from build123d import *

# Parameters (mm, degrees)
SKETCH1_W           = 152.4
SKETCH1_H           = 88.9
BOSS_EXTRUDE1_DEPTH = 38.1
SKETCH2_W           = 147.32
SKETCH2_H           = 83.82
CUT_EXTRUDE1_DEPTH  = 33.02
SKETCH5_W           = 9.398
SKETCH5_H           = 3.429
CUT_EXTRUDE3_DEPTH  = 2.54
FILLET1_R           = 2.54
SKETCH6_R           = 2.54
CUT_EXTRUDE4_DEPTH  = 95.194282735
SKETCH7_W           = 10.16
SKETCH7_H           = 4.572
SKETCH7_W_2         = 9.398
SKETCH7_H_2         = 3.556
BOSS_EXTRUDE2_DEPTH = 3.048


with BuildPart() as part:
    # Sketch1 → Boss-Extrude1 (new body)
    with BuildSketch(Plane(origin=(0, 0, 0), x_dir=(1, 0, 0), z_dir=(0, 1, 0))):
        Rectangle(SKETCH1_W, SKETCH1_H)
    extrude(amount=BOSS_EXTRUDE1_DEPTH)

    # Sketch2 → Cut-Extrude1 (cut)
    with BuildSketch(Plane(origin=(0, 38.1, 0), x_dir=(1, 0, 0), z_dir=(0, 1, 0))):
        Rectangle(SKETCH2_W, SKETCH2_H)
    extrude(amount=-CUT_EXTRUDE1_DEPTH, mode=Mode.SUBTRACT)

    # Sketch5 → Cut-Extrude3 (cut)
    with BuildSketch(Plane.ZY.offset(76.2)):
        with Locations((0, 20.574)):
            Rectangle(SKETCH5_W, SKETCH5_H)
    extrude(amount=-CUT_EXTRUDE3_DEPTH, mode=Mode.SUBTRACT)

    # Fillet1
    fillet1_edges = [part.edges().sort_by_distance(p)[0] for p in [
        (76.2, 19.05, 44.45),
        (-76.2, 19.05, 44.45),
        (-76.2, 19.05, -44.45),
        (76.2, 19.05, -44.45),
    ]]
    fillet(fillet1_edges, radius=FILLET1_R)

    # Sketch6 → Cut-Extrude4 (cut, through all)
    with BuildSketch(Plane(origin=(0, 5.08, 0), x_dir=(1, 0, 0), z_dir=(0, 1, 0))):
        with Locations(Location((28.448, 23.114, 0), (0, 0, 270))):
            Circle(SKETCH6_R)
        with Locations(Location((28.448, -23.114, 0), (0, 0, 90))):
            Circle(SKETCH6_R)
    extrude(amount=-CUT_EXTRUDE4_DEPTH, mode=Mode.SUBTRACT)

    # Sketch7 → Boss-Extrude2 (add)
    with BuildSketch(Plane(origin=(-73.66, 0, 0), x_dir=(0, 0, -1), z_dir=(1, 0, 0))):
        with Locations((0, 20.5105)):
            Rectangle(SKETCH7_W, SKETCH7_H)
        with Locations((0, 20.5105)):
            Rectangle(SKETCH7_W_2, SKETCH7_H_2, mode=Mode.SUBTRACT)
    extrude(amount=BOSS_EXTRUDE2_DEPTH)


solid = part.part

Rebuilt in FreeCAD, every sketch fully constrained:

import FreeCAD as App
import Part
import Sketcher
Q = App.Units.Quantity


def edges_at(feature, points):
    """Names of the edges that pass closest to the given points."""
    edges = feature.Shape.Edges
    near = lambda p: min(range(len(edges)), key=lambda i: edges[i].distToShape(Part.Vertex(*p))[0])
    return sorted({f"Edge{near(p) + 1}" for p in points})


def add_polygon(sketch, points):
    """Adds a closed chain of lines whose ends are joined by coincident constraints."""
    first, n = sketch.GeometryCount, len(points)
    for a, b in zip(points, points[1:] + points[:1]):
        sketch.addGeometry(Part.LineSegment(App.Vector(*a, 0), App.Vector(*b, 0)), False)
    for i in range(n):
        sketch.addConstraint(Sketcher.Constraint("Coincident", first + i, 2, first + (i + 1) % n, 1))

doc = App.newDocument("Part")
body = doc.addObject("PartDesign::Body", "Body")

sketch1 = body.newObject("Sketcher::SketchObject", "Sketch")
sketch1.AttachmentSupport = (doc.getObject("XZ_Plane"), [""])
sketch1.MapMode = "FlatFace"
add_polygon(sketch1, [(-76.2, -44.45), (-76.2, 44.45), (76.2, 44.45), (76.2, -44.45)])
sketch1.addConstraint([
    Sketcher.Constraint("Vertical", 0),
    Sketcher.Constraint("Horizontal", 1),
    Sketcher.Constraint("Vertical", 2),
    Sketcher.Constraint("Horizontal", 3),
    Sketcher.Constraint("Symmetric", 0, 2, 2, 2, -1, 1),
    Sketcher.Constraint("DistanceX", 1, 1, 1, 2, Q("6 in")),
    Sketcher.Constraint("DistanceY", 0, 1, 0, 2, Q("3.5 in")),
])
pad1 = body.newObject("PartDesign::Pad", "Pad")
pad1.Profile = sketch1
pad1.Length = Q("1.5 in")
pad1.Reversed = True

sketch2 = body.newObject("Sketcher::SketchObject", "Sketch001")
sketch2.AttachmentSupport = (doc.getObject("XZ_Plane"), [""])
sketch2.MapMode = "FlatFace"
sketch2.AttachmentOffset = App.Placement(App.Vector(0, 0, -1.5 * 25.4), App.Rotation())
add_polygon(sketch2, [(-73.66, -41.91), (-73.66, 41.91), (73.66, 41.91), (73.66, -41.91)])
sketch2.addConstraint([
    Sketcher.Constraint("Vertical", 0),
    Sketcher.Constraint("Horizontal", 1),
    Sketcher.Constraint("Vertical", 2),
    Sketcher.Constraint("Horizontal", 3),
    Sketcher.Constraint("Symmetric", 0, 2, 2, 2, -1, 1),
    Sketcher.Constraint("DistanceX", 1, 1, 1, 2, Q("5.8 in")),
    Sketcher.Constraint("DistanceY", 0, 1, 0, 2, Q("3.3 in")),
])
pocket1 = body.newObject("PartDesign::Pocket", "Pocket")
pocket1.Profile = sketch2
pocket1.Length = Q("1.3 in")
pocket1.Reversed = True

sketch3 = body.newObject("Sketcher::SketchObject", "Sketch002")
sketch3.AttachmentSupport = (doc.getObject("YZ_Plane"), [""])
sketch3.MapMode = "FlatFace"
sketch3.AttachmentOffset = App.Placement(App.Vector(0, 0, -3 * 25.4), App.Rotation())
add_polygon(sketch3, [(22.2885, -4.699), (18.8595, -4.699), (18.8595, 4.699), (22.2885, 4.699)])
sketch3.addConstraint([
    Sketcher.Constraint("Horizontal", 0),
    Sketcher.Constraint("Vertical", 1),
    Sketcher.Constraint("Horizontal", 2),
    Sketcher.Constraint("Vertical", 3),
    Sketcher.Constraint("DistanceY", 1, 1, 1, 2, Q("0.37 in")),
    Sketcher.Constraint("DistanceX", 0, 2, 0, 1, Q("0.135 in")),
    Sketcher.Constraint("DistanceY", 0, 2, -1, 1, Q("0.185 in")),
    Sketcher.Constraint("DistanceX", -1, 1, 0, 2, Q("0.7425 in")),
])
pocket2 = body.newObject("PartDesign::Pocket", "Pocket001")
pocket2.Profile = sketch3
pocket2.Length = Q("0.1 in")
pocket2.Reversed = True
doc.recompute()

fillet = body.newObject("PartDesign::Fillet", "Fillet")
fillet.Base = (pocket2, edges_at(pocket2, [
    (76.2, 19.05, 44.45),
    (-76.2, 19.05, 44.45),
    (-76.2, 19.05, -44.45),
    (76.2, 19.05, -44.45),
]))
fillet.Radius = Q("0.1 in")

sketch4 = body.newObject("Sketcher::SketchObject", "Sketch003")
sketch4.AttachmentSupport = (doc.getObject("XZ_Plane"), [""])
sketch4.MapMode = "FlatFace"
sketch4.AttachmentOffset = App.Placement(App.Vector(0, 0, -0.2 * 25.4), App.Rotation())
sketch4.addGeometry([
    Part.Circle(App.Vector(28.448, -23.114, 0), App.Vector(0, 0, 1), 2.54),
    Part.Circle(App.Vector(28.448, 23.114, 0), App.Vector(0, 0, 1), 2.54),
], False)
sketch4.addConstraint([
    Sketcher.Constraint("Equal", 0, 1),
    Sketcher.Constraint("Symmetric", 0, 3, 1, 3, -1),
    Sketcher.Constraint("Diameter", 0, Q("0.2 in")),
    Sketcher.Constraint("DistanceX", -1, 1, 0, 3, Q("1.12 in")),
    Sketcher.Constraint("DistanceY", 0, 3, -1, 1, Q("0.91 in")),
])
pocket3 = body.newObject("PartDesign::Pocket", "Pocket002")
pocket3.Profile = sketch4
pocket3.Type = "ThroughAll"
pocket3.Reversed = True

sketch5 = body.newObject("Sketcher::SketchObject", "Sketch004")
sketch5.AttachmentSupport = (doc.getObject("YZ_Plane"), [""])
sketch5.MapMode = "FlatFace"
sketch5.AttachmentOffset = App.Placement(App.Vector(0, 0, -2.9 * 25.4), App.Rotation())
add_polygon(sketch5, [(22.7965, 5.08), (18.2245, 5.08), (18.2245, -5.08), (22.7965, -5.08)])
add_polygon(sketch5, [(18.7325, -4.699), (18.7325, 4.699), (22.2885, 4.699), (22.2885, -4.699)])
sketch5.addConstraint([
    Sketcher.Constraint("Horizontal", 0),
    Sketcher.Constraint("Vertical", 1),
    Sketcher.Constraint("Horizontal", 2),
    Sketcher.Constraint("Vertical", 3),
    Sketcher.Constraint("Vertical", 4),
    Sketcher.Constraint("Horizontal", 5),
    Sketcher.Constraint("Vertical", 6),
    Sketcher.Constraint("Horizontal", 7),
    Sketcher.Constraint("DistanceY", 1, 2, 1, 1, Q("0.4 in")),
    Sketcher.Constraint("DistanceX", 0, 2, 0, 1, Q("0.18 in")),
    Sketcher.Constraint("DistanceX", 5, 1, 5, 2, Q("0.14 in")),
    Sketcher.Constraint("DistanceY", 4, 1, 4, 2, Q("0.37 in")),
    Sketcher.Constraint("DistanceY", -1, 1, 0, 2, Q("0.2 in")),
    Sketcher.Constraint("DistanceX", 0, 2, 4, 2, Q("0.02 in")),
    Sketcher.Constraint("DistanceY", -1, 1, 4, 2, Q("0.185 in")),
    Sketcher.Constraint("DistanceX", -1, 1, 0, 2, Q("0.7175 in")),
])
pad2 = body.newObject("PartDesign::Pad", "Pad001")
pad2.Profile = sketch5
pad2.Length = Q("0.12 in")

doc.recompute()
